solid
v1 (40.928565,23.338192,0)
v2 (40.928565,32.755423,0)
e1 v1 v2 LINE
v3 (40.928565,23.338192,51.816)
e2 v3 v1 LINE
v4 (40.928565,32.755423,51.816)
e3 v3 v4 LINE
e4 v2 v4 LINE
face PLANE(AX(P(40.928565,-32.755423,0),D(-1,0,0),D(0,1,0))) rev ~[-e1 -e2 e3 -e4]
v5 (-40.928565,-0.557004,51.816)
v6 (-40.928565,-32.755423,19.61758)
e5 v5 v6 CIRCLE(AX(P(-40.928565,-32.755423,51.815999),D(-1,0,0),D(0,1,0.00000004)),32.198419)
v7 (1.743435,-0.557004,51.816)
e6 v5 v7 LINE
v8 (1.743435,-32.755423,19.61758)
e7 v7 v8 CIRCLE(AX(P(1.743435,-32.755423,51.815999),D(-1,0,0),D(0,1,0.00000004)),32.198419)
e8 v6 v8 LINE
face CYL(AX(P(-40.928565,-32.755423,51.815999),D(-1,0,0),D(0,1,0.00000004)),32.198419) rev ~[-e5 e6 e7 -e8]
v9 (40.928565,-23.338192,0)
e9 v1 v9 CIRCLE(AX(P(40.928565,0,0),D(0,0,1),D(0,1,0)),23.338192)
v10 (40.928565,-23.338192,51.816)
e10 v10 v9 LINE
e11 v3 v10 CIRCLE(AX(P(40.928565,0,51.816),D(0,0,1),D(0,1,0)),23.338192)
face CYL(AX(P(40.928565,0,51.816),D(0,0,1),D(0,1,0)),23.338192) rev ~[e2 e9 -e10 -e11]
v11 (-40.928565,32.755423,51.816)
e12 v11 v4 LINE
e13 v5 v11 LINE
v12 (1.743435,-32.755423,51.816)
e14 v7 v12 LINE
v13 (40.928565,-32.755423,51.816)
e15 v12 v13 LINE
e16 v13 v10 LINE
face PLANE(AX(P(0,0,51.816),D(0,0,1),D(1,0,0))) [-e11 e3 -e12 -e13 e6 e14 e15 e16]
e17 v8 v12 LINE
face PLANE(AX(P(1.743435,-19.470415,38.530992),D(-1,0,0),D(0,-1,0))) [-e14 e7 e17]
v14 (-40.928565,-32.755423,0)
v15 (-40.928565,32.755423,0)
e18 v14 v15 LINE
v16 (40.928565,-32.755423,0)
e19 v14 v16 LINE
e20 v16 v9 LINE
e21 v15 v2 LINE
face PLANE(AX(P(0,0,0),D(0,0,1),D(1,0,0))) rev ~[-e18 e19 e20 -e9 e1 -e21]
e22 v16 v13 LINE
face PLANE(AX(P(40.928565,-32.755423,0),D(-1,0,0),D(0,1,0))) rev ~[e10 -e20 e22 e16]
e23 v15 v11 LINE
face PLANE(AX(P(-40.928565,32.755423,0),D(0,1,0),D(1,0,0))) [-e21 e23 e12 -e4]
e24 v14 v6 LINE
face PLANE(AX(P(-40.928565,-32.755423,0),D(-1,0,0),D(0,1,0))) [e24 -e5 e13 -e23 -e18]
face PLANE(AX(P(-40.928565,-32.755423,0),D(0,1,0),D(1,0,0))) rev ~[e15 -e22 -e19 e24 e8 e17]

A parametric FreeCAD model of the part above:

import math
import FreeCAD as App
import Part
import Sketcher

V = App.Vector
Q = App.Units.Quantity

doc = App.newDocument("Part")
body = doc.addObject("PartDesign::Body", "Body")

sketch1 = body.newObject("Sketcher::SketchObject", "Sketch")
sketch1.AttachmentSupport = (doc.getObject("XY_Plane"), [""])
sketch1.MapMode = "FlatFace"
sketch1.addGeometry([
    Part.LineSegment(V(-41, 33, 0), V(-41, -33, 0)),
    Part.LineSegment(V(-41, -33, 0), V(41, -33, 0)),
    Part.LineSegment(V(41, -33, 0), V(41, 33, 0)),
    Part.LineSegment(V(41, 33, 0), V(-41, 33, 0)),
], False)
sketch1.addConstraint([
    Sketcher.Constraint("Coincident", 0, 2, 1, 1),
    Sketcher.Constraint("Coincident", 1, 2, 2, 1),
    Sketcher.Constraint("Coincident", 2, 2, 3, 1),
    Sketcher.Constraint("Coincident", 3, 2, 0, 1),
    Sketcher.Constraint("Vertical", 0),
    Sketcher.Constraint("Horizontal", 1),
    Sketcher.Constraint("Vertical", 2),
    Sketcher.Constraint("Horizontal", 3),
    Sketcher.Constraint("Symmetric", 0, 2, 2, 2, -1, 1),
    Sketcher.Constraint("DistanceX", 1, 1, 1, 2, 81.85713),
    Sketcher.Constraint("DistanceY", 0, 2, 0, 1, 65.510846),
])
pad1 = body.newObject("PartDesign::Pad", "Pad")
pad1.Profile = sketch1
pad1.Length = Q("2.04 in")

sketch2 = body.newObject("Sketcher::SketchObject", "Sketch001")
sketch2.AttachmentSupport = (doc.getObject("XY_Plane"), [""])
sketch2.MapMode = "FlatFace"
sketch2.AttachmentOffset = App.Placement(V(0, 0, 2.04 * 25.4), App.Rotation())
sketch2.addGeometry([
    Part.LineSegment(V(41, -23, 0), V(41, 23, 0)),
    Part.ArcOfCircle(Part.Circle(V(41, 0, 0), V(0, 0, 1), 23), math.radians(90), math.radians(270)),
], False)
sketch2.addConstraint([
    Sketcher.Constraint("Coincident", 0, 1, 1, 2),
    Sketcher.Constraint("Coincident", 1, 1, 0, 2),
    Sketcher.Constraint("Vertical", 0),
    Sketcher.Constraint("PointOnObject", 1, 3, -1),
    Sketcher.Constraint("Vertical", 1, 3, 0, 1),
    Sketcher.Constraint("Radius", 1, 23.338192),
    Sketcher.Constraint("DistanceX", -1, 1, 1, 3, 40.928565),
])
pocket1 = body.newObject("PartDesign::Pocket", "Pocket")
pocket1.Profile = sketch2
pocket1.Length = Q("3.11 in")

sketch3 = body.newObject("Sketcher::SketchObject", "Sketch002")
sketch3.AttachmentSupport = (doc.getObject("YZ_Plane"), [""])
sketch3.MapMode = "FlatFace"
sketch3.AttachmentOffset = App.Placement(V(0, 0, -40.928565), App.Rotation())
sketch3.addGeometry([
    Part.ArcOfCircle(Part.Circle(V(-33, 52, 0), V(0, 0, 1), 32), math.radians(-90), math.radians(0)),
    Part.ArcOfCircle(Part.Circle(V(-33, 52, 0), V(0, 0, 1), 32), math.radians(-180), math.radians(-90)),
    Part.ArcOfCircle(Part.Circle(V(-33, 52, 0), V(0, 0, 1), 32), math.radians(0), math.radians(180)),
], False)
sketch3.addConstraint([
    Sketcher.Constraint("Tangent", 0, 1, 1, 2),
    Sketcher.Constraint("Tangent", 1, 1, 2, 2),
    Sketcher.Constraint("Tangent", 2, 1, 0, 2),
    Sketcher.Constraint("Horizontal", 2, 3, 1, 1),
    Sketcher.Constraint("Horizontal", 1, 1, 2, 1),
    Sketcher.Constraint("Vertical", 2, 3, 0, 1),
    Sketcher.Constraint("DistanceY", -1, 1, 0, 3, Q("2.0399999 in")),
    Sketcher.Constraint("Radius", 0, 32.198419),
    Sketcher.Constraint("DistanceX", 0, 3, -1, 1, 32.755423),
])
pocket2 = body.newObject("PartDesign::Pocket", "Pocket001")
pocket2.Profile = sketch3
pocket2.Length = Q("1.68 in")
pocket2.Reversed = True

doc.recompute()
